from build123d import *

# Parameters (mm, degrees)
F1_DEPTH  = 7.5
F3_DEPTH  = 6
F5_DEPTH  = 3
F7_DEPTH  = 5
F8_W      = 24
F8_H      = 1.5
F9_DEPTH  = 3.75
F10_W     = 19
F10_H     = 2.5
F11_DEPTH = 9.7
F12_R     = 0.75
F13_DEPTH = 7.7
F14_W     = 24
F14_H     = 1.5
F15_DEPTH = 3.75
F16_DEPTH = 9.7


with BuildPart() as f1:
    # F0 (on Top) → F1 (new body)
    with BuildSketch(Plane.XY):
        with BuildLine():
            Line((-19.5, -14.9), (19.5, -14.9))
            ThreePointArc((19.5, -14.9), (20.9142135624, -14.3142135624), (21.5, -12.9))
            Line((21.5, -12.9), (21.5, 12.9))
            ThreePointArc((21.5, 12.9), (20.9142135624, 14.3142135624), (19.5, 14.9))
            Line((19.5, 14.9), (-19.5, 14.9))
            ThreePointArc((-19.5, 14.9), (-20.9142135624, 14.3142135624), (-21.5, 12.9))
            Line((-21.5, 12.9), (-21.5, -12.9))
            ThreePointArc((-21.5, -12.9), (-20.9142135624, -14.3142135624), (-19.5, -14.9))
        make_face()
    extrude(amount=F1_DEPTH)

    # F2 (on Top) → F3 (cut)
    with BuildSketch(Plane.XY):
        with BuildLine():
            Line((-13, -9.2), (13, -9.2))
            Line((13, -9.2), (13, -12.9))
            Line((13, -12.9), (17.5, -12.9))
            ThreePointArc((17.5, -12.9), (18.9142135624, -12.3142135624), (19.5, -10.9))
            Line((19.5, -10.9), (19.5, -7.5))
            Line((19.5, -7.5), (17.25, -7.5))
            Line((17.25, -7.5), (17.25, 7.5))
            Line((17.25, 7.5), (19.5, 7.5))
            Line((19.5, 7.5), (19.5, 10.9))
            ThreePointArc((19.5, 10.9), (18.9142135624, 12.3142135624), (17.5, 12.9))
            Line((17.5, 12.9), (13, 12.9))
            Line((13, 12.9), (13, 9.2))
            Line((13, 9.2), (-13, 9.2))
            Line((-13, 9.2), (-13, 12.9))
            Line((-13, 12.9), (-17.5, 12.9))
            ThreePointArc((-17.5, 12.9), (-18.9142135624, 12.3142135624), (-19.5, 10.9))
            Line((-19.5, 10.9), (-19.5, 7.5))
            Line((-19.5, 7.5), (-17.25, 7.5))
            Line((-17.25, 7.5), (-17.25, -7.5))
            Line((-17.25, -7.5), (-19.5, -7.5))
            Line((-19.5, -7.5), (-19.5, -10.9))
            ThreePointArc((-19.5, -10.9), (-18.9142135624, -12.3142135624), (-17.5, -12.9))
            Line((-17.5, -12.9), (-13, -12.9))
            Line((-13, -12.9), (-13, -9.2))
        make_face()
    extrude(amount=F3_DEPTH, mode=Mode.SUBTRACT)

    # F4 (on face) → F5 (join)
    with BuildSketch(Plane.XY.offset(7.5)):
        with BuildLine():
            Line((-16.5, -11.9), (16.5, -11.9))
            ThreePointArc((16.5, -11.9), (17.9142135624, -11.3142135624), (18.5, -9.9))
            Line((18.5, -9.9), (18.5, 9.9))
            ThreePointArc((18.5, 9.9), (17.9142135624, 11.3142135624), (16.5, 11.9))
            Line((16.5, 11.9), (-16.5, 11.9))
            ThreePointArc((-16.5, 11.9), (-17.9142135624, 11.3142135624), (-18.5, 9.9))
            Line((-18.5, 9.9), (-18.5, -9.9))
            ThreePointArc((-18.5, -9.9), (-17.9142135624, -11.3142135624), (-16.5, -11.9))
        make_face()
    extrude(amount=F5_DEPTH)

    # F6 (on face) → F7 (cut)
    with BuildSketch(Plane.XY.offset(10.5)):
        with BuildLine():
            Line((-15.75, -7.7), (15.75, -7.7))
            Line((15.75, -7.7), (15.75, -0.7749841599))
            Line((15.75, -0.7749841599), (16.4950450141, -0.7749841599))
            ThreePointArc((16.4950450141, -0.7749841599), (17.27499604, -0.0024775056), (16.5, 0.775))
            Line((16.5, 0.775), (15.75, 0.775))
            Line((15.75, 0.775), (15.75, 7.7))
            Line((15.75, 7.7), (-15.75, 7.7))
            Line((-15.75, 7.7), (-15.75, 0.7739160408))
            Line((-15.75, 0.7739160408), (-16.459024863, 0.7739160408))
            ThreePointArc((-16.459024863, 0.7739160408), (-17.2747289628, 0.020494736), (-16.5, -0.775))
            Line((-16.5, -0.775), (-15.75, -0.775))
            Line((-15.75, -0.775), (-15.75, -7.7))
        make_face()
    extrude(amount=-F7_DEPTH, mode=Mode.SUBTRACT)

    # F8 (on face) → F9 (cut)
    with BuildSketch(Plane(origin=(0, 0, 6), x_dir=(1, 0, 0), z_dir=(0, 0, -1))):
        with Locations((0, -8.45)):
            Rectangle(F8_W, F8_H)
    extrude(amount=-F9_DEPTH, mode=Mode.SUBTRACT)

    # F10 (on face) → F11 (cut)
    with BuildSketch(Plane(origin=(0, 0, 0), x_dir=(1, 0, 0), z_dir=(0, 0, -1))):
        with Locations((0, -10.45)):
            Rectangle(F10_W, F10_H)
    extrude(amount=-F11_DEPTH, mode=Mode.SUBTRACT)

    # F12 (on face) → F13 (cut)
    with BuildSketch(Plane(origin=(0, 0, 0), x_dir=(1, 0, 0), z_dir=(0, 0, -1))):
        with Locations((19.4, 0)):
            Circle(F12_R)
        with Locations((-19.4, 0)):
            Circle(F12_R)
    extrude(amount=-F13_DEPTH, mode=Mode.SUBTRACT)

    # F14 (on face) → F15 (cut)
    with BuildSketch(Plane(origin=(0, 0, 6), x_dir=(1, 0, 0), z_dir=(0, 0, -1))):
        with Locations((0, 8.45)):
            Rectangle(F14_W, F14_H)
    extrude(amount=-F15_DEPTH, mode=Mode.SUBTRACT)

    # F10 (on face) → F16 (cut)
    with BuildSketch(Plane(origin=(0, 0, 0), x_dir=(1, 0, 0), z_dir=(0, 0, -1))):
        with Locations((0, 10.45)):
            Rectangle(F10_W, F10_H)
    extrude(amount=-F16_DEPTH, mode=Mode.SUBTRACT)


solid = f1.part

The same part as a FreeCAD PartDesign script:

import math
import FreeCAD as App
import Part
import Sketcher

V = App.Vector


def add_polygon(sketch, points):
    """Adds a closed chain of lines whose ends are joined by coincident constraints."""
    first, n = sketch.GeometryCount, len(points)
    for a, b in zip(points, points[1:] + points[:1]):
        sketch.addGeometry(Part.LineSegment(App.Vector(*a, 0), App.Vector(*b, 0)), False)
    for i in range(n):
        sketch.addConstraint(Sketcher.Constraint("Coincident", first + i, 2, first + (i + 1) % n, 1))

doc = App.newDocument("Part")
body = doc.addObject("PartDesign::Body", "Body")

# Sketch on XY plane
sketch1 = body.newObject("Sketcher::SketchObject", "Sketch")
sketch1.AttachmentSupport = (doc.getObject("XY_Plane"), [""])
sketch1.MapMode = "FlatFace"
sketch1.addGeometry([
    Part.LineSegment(V(-19.5, -14.9, 0), V(19.5, -14.9, 0)),  # 0
    Part.ArcOfCircle(Part.Circle(V(19.5, -12.9, 0), V(0, 0, 1), 2), math.radians(-90), math.radians(0)),  # 1
    Part.LineSegment(V(21.5, -12.9, 0), V(21.5, 12.9, 0)),  # 2
    Part.ArcOfCircle(Part.Circle(V(19.5, 12.9, 0), V(0, 0, 1), 2), math.radians(0), math.radians(90)),  # 3
    Part.LineSegment(V(19.5, 14.9, 0), V(-19.5, 14.9, 0)),  # 4
    Part.ArcOfCircle(Part.Circle(V(-19.5, 12.9, 0), V(0, 0, 1), 2), math.radians(90), math.radians(180)),  # 5
    Part.LineSegment(V(-21.5, 12.9, 0), V(-21.5, -12.9, 0)),  # 6
    Part.ArcOfCircle(Part.Circle(V(-19.5, -12.9, 0), V(0, 0, 1), 2), math.radians(180), math.radians(270)),  # 7
], False)
sketch1.addConstraint([
    Sketcher.Constraint("Tangent", 0, 2, 1, 1),
    Sketcher.Constraint("Tangent", 1, 2, 2, 1),
    Sketcher.Constraint("Tangent", 2, 2, 3, 1),
    Sketcher.Constraint("Tangent", 3, 2, 4, 1),
    Sketcher.Constraint("Tangent", 4, 2, 5, 1),
    Sketcher.Constraint("Tangent", 5, 2, 6, 1),
    Sketcher.Constraint("Tangent", 6, 2, 7, 1),
    Sketcher.Constraint("Tangent", 7, 2, 0, 1),
    Sketcher.Constraint("Horizontal", 0),
    Sketcher.Constraint("Vertical", 2),
    Sketcher.Constraint("Horizontal", 4),
    Sketcher.Constraint("Vertical", 6),
    Sketcher.Constraint("Equal", 1, 3),
    Sketcher.Constraint("Equal", 3, 5),
    Sketcher.Constraint("Equal", 5, 7),
    Sketcher.Constraint("Symmetric", 1, 3, 5, 3, -1, 1),
    Sketcher.Constraint("Radius", 1, 2.0),
    Sketcher.Constraint("DistanceX", 0, 1, 0, 2, 39.0),
    Sketcher.Constraint("DistanceY", 2, 1, 2, 2, 25.8),
])
pad1 = body.newObject("PartDesign::Pad", "Pad")
pad1.Profile = sketch1
pad1.Length = 7.5

# Sketch on XY plane
sketch2 = body.newObject("Sketcher::SketchObject", "Sketch001")
sketch2.AttachmentSupport = (doc.getObject("XY_Plane"), [""])
sketch2.MapMode = "FlatFace"
sketch2.addGeometry([
    Part.LineSegment(V(-13, -9.2, 0), V(13, -9.2, 0)),  # 0
    Part.LineSegment(V(13, -9.2, 0), V(13, -12.9, 0)),  # 1
    Part.LineSegment(V(13, -12.9, 0), V(17.5, -12.9, 0)),  # 2
    Part.ArcOfCircle(Part.Circle(V(17.5, -10.9, 0), V(0, 0, 1), 2), math.radians(-90), math.radians(0)),  # 3
    Part.LineSegment(V(19.5, -10.9, 0), V(19.5, -7.5, 0)),  # 4
    Part.LineSegment(V(19.5, -7.5, 0), V(17.2, -7.5, 0)),  # 5
    Part.LineSegment(V(17.2, -7.5, 0), V(17.2, 7.5, 0)),  # 6
    Part.LineSegment(V(17.2, 7.5, 0), V(19.5, 7.5, 0)),  # 7
    Part.LineSegment(V(19.5, 7.5, 0), V(19.5, 10.9, 0)),  # 8
    Part.ArcOfCircle(Part.Circle(V(17.5, 10.9, 0), V(0, 0, 1), 2), math.radians(0), math.radians(90)),  # 9
    Part.LineSegment(V(17.5, 12.9, 0), V(13, 12.9, 0)),  # 10
    Part.LineSegment(V(13, 12.9, 0), V(13, 9.2, 0)),  # 11
    Part.LineSegment(V(13, 9.2, 0), V(-13, 9.2, 0)),  # 12
    Part.LineSegment(V(-13, 9.2, 0), V(-13, 12.9, 0)),  # 13
    Part.LineSegment(V(-13, 12.9, 0), V(-17.5, 12.9, 0)),  # 14
    Part.ArcOfCircle(Part.Circle(V(-17.5, 10.9, 0), V(0, 0, 1), 2), math.radians(90), math.radians(180)),  # 15
    Part.LineSegment(V(-19.5, 10.9, 0), V(-19.5, 7.5, 0)),  # 16
    Part.LineSegment(V(-19.5, 7.5, 0), V(-17.2, 7.5, 0)),  # 17
    Part.LineSegment(V(-17.2, 7.5, 0), V(-17.2, -7.5, 0)),  # 18
    Part.LineSegment(V(-17.2, -7.5, 0), V(-19.5, -7.5, 0)),  # 19
    Part.LineSegment(V(-19.5, -7.5, 0), V(-19.5, -10.9, 0)),  # 20
    Part.ArcOfCircle(Part.Circle(V(-17.5, -10.9, 0), V(0, 0, 1), 2), math.radians(180), math.radians(270)),  # 21
    Part.LineSegment(V(-17.5, -12.9, 0), V(-13, -12.9, 0)),  # 22
    Part.LineSegment(V(-13, -12.9, 0), V(-13, -9.2, 0)),  # 23
], False)
sketch2.addConstraint([
    Sketcher.Constraint("Coincident", 0, 2, 1, 1),
    Sketcher.Constraint("Coincident", 1, 2, 2, 1),
    Sketcher.Constraint("Tangent", 2, 2, 3, 1),
    Sketcher.Constraint("Tangent", 3, 2, 4, 1),
    Sketcher.Constraint("Coincident", 4, 2, 5, 1),
    Sketcher.Constraint("Coincident", 5, 2, 6, 1),
    Sketcher.Constraint("Coincident", 6, 2, 7, 1),
    Sketcher.Constraint("Coincident", 7, 2, 8, 1),
    Sketcher.Constraint("Tangent", 8, 2, 9, 1),
    Sketcher.Constraint("Tangent", 9, 2, 10, 1),
    Sketcher.Constraint("Coincident", 10, 2, 11, 1),
    Sketcher.Constraint("Coincident", 11, 2, 12, 1),
    Sketcher.Constraint("Coincident", 12, 2, 13, 1),
    Sketcher.Constraint("Coincident", 13, 2, 14, 1),
    Sketcher.Constraint("Tangent", 14, 2, 15, 1),
    Sketcher.Constraint("Tangent", 15, 2, 16, 1),
    Sketcher.Constraint("Coincident", 16, 2, 17, 1),
    Sketcher.Constraint("Coincident", 17, 2, 18, 1),
    Sketcher.Constraint("Coincident", 18, 2, 19, 1),
    Sketcher.Constraint("Coincident", 19, 2, 20, 1),
    Sketcher.Constraint("Tangent", 20, 2, 21, 1),
    Sketcher.Constraint("Tangent", 21, 2, 22, 1),
    Sketcher.Constraint("Coincident", 22, 2, 23, 1),
    Sketcher.Constraint("Coincident", 23, 2, 0, 1),
    Sketcher.Constraint("Horizontal", 0),
    Sketcher.Constraint("Vertical", 1),
    Sketcher.Constraint("Horizontal", 2),
    Sketcher.Constraint("Vertical", 4),
    Sketcher.Constraint("Horizontal", 5),
    Sketcher.Constraint("Vertical", 6),
    Sketcher.Constraint("Horizontal", 7),
    Sketcher.Constraint("Vertical", 8),
    Sketcher.Constraint("Horizontal", 10),
    Sketcher.Constraint("Vertical", 11),
    Sketcher.Constraint("Horizontal", 12),
    Sketcher.Constraint("Vertical", 13),
    Sketcher.Constraint("Horizontal", 14),
    Sketcher.Constraint("Vertical", 16),
    Sketcher.Constraint("Horizontal", 17),
    Sketcher.Constraint("Vertical", 18),
    Sketcher.Constraint("Horizontal", 19),
    Sketcher.Constraint("Vertical", 20),
    Sketcher.Constraint("Horizontal", 22),
    Sketcher.Constraint("Vertical", 23),
    Sketcher.Constraint("Equal", 3, 9),
    Sketcher.Constraint("Equal", 9, 15),
    Sketcher.Constraint("Equal", 15, 21),
    Sketcher.Constraint("Symmetric", 3, 3, 15, 3, -1, 1),
    Sketcher.Constraint("Symmetric", 9, 3, 21, 3, -1, 1),
    Sketcher.Constraint("Symmetric", 0, 2, 12, 2, -1, 1),
    Sketcher.Constraint("Symmetric", 5, 2, 17, 2, -1, 1),
    Sketcher.Constraint("Symmetric", 9, 3, 15, 3, -2),
    Sketcher.Constraint("Horizontal", 7, 2, 16, 2),
    Sketcher.Constraint("Horizontal", 5, 2, 18, 2),
    Sketcher.Constraint("Vertical", 1, 2, 10, 2),
    Sketcher.Constraint("Vertical", 13, 2, 22, 2),
    Sketcher.Constraint("Radius", 3, 2.0),
    Sketcher.Constraint("DistanceX", 0, 1, 0, 2, 26.0),
    Sketcher.Constraint("DistanceY", 6, 1, 6, 2, 15.0),
    Sketcher.Constraint("DistanceX", 2, 1, 2, 2, 4.5),
    Sketcher.Constraint("DistanceY", 1, 2, 1, 1, 3.7),
    Sketcher.Constraint("DistanceY", 4, 1, 4, 2, 3.4),
    Sketcher.Constraint("DistanceX", 5, 2, 5, 1, 2.25),
])
pocket1 = body.newObject("PartDesign::Pocket", "Pocket")
pocket1.Profile = sketch2
pocket1.Length = 6
pocket1.Reversed = True

# Sketch on XY plane
sketch3 = body.newObject("Sketcher::SketchObject", "Sketch002")
sketch3.AttachmentSupport = (doc.getObject("XY_Plane"), [""])
sketch3.MapMode = "FlatFace"
sketch3.AttachmentOffset = App.Placement(V(0, 0, 7.5), App.Rotation())
sketch3.addGeometry([
    Part.LineSegment(V(-16.5, -11.9, 0), V(16.5, -11.9, 0)),  # 0
    Part.ArcOfCircle(Part.Circle(V(16.5, -9.9, 0), V(0, 0, 1), 2), math.radians(-90), math.radians(0)),  # 1
    Part.LineSegment(V(18.5, -9.9, 0), V(18.5, 9.9, 0)),  # 2
    Part.ArcOfCircle(Part.Circle(V(16.5, 9.9, 0), V(0, 0, 1), 2), math.radians(0), math.radians(90)),  # 3
    Part.LineSegment(V(16.5, 11.9, 0), V(-16.5, 11.9, 0)),  # 4
    Part.ArcOfCircle(Part.Circle(V(-16.5, 9.9, 0), V(0, 0, 1), 2), math.radians(90), math.radians(180)),  # 5
    Part.LineSegment(V(-18.5, 9.9, 0), V(-18.5, -9.9, 0)),  # 6
    Part.ArcOfCircle(Part.Circle(V(-16.5, -9.9, 0), V(0, 0, 1), 2), math.radians(180), math.radians(270)),  # 7
], False)
sketch3.addConstraint([
    Sketcher.Constraint("Tangent", 0, 2, 1, 1),
    Sketcher.Constraint("Tangent", 1, 2, 2, 1),
    Sketcher.Constraint("Tangent", 2, 2, 3, 1),
    Sketcher.Constraint("Tangent", 3, 2, 4, 1),
    Sketcher.Constraint("Tangent", 4, 2, 5, 1),
    Sketcher.Constraint("Tangent", 5, 2, 6, 1),
    Sketcher.Constraint("Tangent", 6, 2, 7, 1),
    Sketcher.Constraint("Tangent", 7, 2, 0, 1),
    Sketcher.Constraint("Horizontal", 0),
    Sketcher.Constraint("Vertical", 2),
    Sketcher.Constraint("Horizontal", 4),
    Sketcher.Constraint("Vertical", 6),
    Sketcher.Constraint("Equal", 1, 3),
    Sketcher.Constraint("Equal", 3, 5),
    Sketcher.Constraint("Equal", 5, 7),
    Sketcher.Constraint("Symmetric", 1, 3, 5, 3, -1, 1),
    Sketcher.Constraint("Radius", 1, 2.0),
    Sketcher.Constraint("DistanceX", 0, 1, 0, 2, 33.0),
    Sketcher.Constraint("DistanceY", 2, 1, 2, 2, 19.8),
])
pad2 = body.newObject("PartDesign::Pad", "Pad001")
pad2.Profile = sketch3
pad2.Length = 3

# Sketch on XY plane
sketch4 = body.newObject("Sketcher::SketchObject", "Sketch003")
sketch4.AttachmentSupport = (doc.getObject("XY_Plane"), [""])
sketch4.MapMode = "FlatFace"
sketch4.AttachmentOffset = App.Placement(V(0, 0, 10.5), App.Rotation())
sketch4.addGeometry([
    Part.LineSegment(V(-15.8, -7.7, 0), V(15.8, -7.7, 0)),  # 0
    Part.LineSegment(V(15.8, -7.7, 0), V(15.8, -0.8, 0)),  # 1
    Part.LineSegment(V(15.8, -0.8, 0), V(16.5, -0.8, 0)),  # 2
    Part.ArcOfCircle(Part.Circle(V(16.5, 0, 0), V(0, 0, 1), 0.8), math.radians(-90), math.radians(90)),  # 3
    Part.LineSegment(V(16.5, 0.8, 0), V(15.8, 0.8, 0)),  # 4
    Part.LineSegment(V(15.8, 0.8, 0), V(15.8, 7.7, 0)),  # 5
    Part.LineSegment(V(15.8, 7.7, 0), V(-15.8, 7.7, 0)),  # 6
    Part.LineSegment(V(-15.8, 7.7, 0), V(-15.8, 0.8, 0)),  # 7
    Part.LineSegment(V(-15.8, 0.8, 0), V(-16.5, 0.8, 0)),  # 8
    Part.ArcOfCircle(Part.Circle(V(-16.5, 0, 0), V(0, 0, 1), 0.8), math.radians(87), math.radians(270)),  # 9
    Part.LineSegment(V(-16.5, -0.8, 0), V(-15.8, -0.8, 0)),  # 10
    Part.LineSegment(V(-15.8, -0.8, 0), V(-15.8, -7.7, 0)),  # 11
], False)
sketch4.addConstraint([
    Sketcher.Constraint("Coincident", 0, 2, 1, 1),
    Sketcher.Constraint("Coincident", 1, 2, 2, 1),
    Sketcher.Constraint("Coincident", 2, 2, 3, 1),
    Sketcher.Constraint("Tangent", 3, 2, 4, 1),
    Sketcher.Constraint("Coincident", 4, 2, 5, 1),
    Sketcher.Constraint("Coincident", 5, 2, 6, 1),
    Sketcher.Constraint("Coincident", 6, 2, 7, 1),
    Sketcher.Constraint("Coincident", 7, 2, 8, 1),
    Sketcher.Constraint("Coincident", 8, 2, 9, 1),
    Sketcher.Constraint("Tangent", 9, 2, 10, 1),
    Sketcher.Constraint("Coincident", 10, 2, 11, 1),
    Sketcher.Constraint("Coincident", 11, 2, 0, 1),
    Sketcher.Constraint("Horizontal", 0),
    Sketcher.Constraint("Vertical", 1),
    Sketcher.Constraint("Horizontal", 2),
    Sketcher.Constraint("Horizontal", 4),
    Sketcher.Constraint("Vertical", 5),
    Sketcher.Constraint("Horizontal", 6),
    Sketcher.Constraint("Vertical", 7),
    Sketcher.Constraint("Horizontal", 8),
    Sketcher.Constraint("Horizontal", 10),
    Sketcher.Constraint("Vertical", 11),
    Sketcher.Constraint("Equal", 3, 9),
    Sketcher.Constraint("Symmetric", 3, 3, 9, 3, -1, 1),
    Sketcher.Constraint("Symmetric", 0, 2, 6, 2, -1, 1),
    Sketcher.Constraint("PointOnObject", 3, 3, -1),
    Sketcher.Constraint("Vertical", 1, 2, 4, 2),
    Sketcher.Constraint("Vertical", 7, 2, 10, 2),
    Sketcher.Constraint("DistanceX", 0, 1, 0, 2, 31.5),
    Sketcher.Constraint("Radius", 3, 0.775),
    Sketcher.Constraint("DistanceX", 9, 3, 3, 3, 33.0),
    Sketcher.Constraint("DistanceY", 0, 2, -1, 1, 7.7),
    Sketcher.Constraint("DistanceY", 1, 2, 7, 2, 1.5489),
    Sketcher.Constraint("DistanceX", 2, 1, 2, 2, 0.745045),
])
pocket2 = body.newObject("PartDesign::Pocket", "Pocket001")
pocket2.Profile = sketch4
pocket2.Length = 5

# Sketch on XY plane
sketch5 = body.newObject("Sketcher::SketchObject", "Sketch004")
sketch5.AttachmentSupport = (doc.getObject("XY_Plane"), [""])
sketch5.MapMode = "FlatFace"
sketch5.AttachmentOffset = App.Placement(V(0, 0, 6), App.Rotation())
add_polygon(sketch5, [(-12, 7.7), (-12, 9.2), (12, 9.2), (12, 7.7)])  # lines 0-3
sketch5.addConstraint([
    Sketcher.Constraint("Vertical", 0),
    Sketcher.Constraint("Horizontal", 1),
    Sketcher.Constraint("Vertical", 2),
    Sketcher.Constraint("Horizontal", 3),
    Sketcher.Constraint("DistanceX", 1, 1, 1, 2, 24.0),
    Sketcher.Constraint("DistanceY", 0, 1, 0, 2, 1.5),
    Sketcher.Constraint("DistanceX", 0, 2, -1, 1, 12.0),
    Sketcher.Constraint("DistanceY", -1, 1, 0, 2, 9.2),
])
pocket3 = body.newObject("PartDesign::Pocket", "Pocket002")
pocket3.Profile = sketch5
pocket3.Length = 3.75
pocket3.Reversed = True

# Sketch on XY plane
sketch6 = body.newObject("Sketcher::SketchObject", "Sketch005")
sketch6.AttachmentSupport = (doc.getObject("XY_Plane"), [""])
sketch6.MapMode = "FlatFace"
add_polygon(sketch6, [(-9.5, 9.2), (-9.5, 11.7), (9.5, 11.7), (9.5, 9.2)])  # lines 0-3
sketch6.addConstraint([
    Sketcher.Constraint("Vertical", 0),
    Sketcher.Constraint("Horizontal", 1),
    Sketcher.Constraint("Vertical", 2),
    Sketcher.Constraint("Horizontal", 3),
    Sketcher.Constraint("DistanceX", 1, 1, 1, 2, 19.0),
    Sketcher.Constraint("DistanceY", 0, 1, 0, 2, 2.5),
    Sketcher.Constraint("DistanceX", 0, 2, -1, 1, 9.5),
    Sketcher.Constraint("DistanceY", -1, 1, 0, 2, 11.7),
])
pocket4 = body.newObject("PartDesign::Pocket", "Pocket003")
pocket4.Profile = sketch6
pocket4.Length = 9.7
pocket4.Reversed = True

# Sketch on XY plane
sketch7 = body.newObject("Sketcher::SketchObject", "Sketch006")
sketch7.AttachmentSupport = (doc.getObject("XY_Plane"), [""])
sketch7.MapMode = "FlatFace"
sketch7.addGeometry([
    Part.Circle(V(19.4, 0, 0), V(0, 0, 1), 0.8),
    Part.Circle(V(-19.4, 0, 0), V(0, 0, 1), 0.8),
], False)
sketch7.addConstraint([
    Sketcher.Constraint("Equal", 0, 1),
    Sketcher.Constraint("Symmetric", 0, 3, 1, 3, -1, 1),
    Sketcher.Constraint("PointOnObject", 0, 3, -1),
    Sketcher.Constraint("Diameter", 0, 1.5),
    Sketcher.Constraint("DistanceX", -1, 1, 0, 3, 19.4),
])
pocket5 = body.newObject("PartDesign::Pocket", "Pocket004")
pocket5.Profile = sketch7
pocket5.Length = 7.7
pocket5.Reversed = True

# Sketch on XY plane
sketch8 = body.newObject("Sketcher::SketchObject", "Sketch007")
sketch8.AttachmentSupport = (doc.getObject("XY_Plane"), [""])
sketch8.MapMode = "FlatFace"
sketch8.AttachmentOffset = App.Placement(V(0, 0, 6), App.Rotation())
add_polygon(sketch8, [(-12, -9.2), (-12, -7.7), (12, -7.7), (12, -9.2)])  # lines 0-3
sketch8.addConstraint([
    Sketcher.Constraint("Vertical", 0),
    Sketcher.Constraint("Horizontal", 1),
    Sketcher.Constraint("Vertical", 2),
    Sketcher.Constraint("Horizontal", 3),
    Sketcher.Constraint("DistanceX", 1, 1, 1, 2, 24.0),
    Sketcher.Constraint("DistanceY", 0, 1, 0, 2, 1.5),
    Sketcher.Constraint("DistanceX", 0, 2, -1, 1, 12.0),
    Sketcher.Constraint("DistanceY", 0, 2, -1, 1, 7.7),
])
pocket6 = body.newObject("PartDesign::Pocket", "Pocket005")
pocket6.Profile = sketch8
pocket6.Length = 3.75
pocket6.Reversed = True

# Sketch on XY plane
sketch9 = body.newObject("Sketcher::SketchObject", "Sketch008")
sketch9.AttachmentSupport = (doc.getObject("XY_Plane"), [""])
sketch9.MapMode = "FlatFace"
add_polygon(sketch9, [(-9.5, -11.7), (-9.5, -9.2), (9.5, -9.2), (9.5, -11.7)])  # lines 0-3
sketch9.addConstraint([
    Sketcher.Constraint("Vertical", 0),
    Sketcher.Constraint("Horizontal", 1),
    Sketcher.Constraint("Vertical", 2),
    Sketcher.Constraint("Horizontal", 3),
    Sketcher.Constraint("DistanceX", 1, 1, 1, 2, 19.0),
    Sketcher.Constraint("DistanceY", 0, 1, 0, 2, 2.5),
    Sketcher.Constraint("DistanceX", 0, 2, -1, 1, 9.5),
    Sketcher.Constraint("DistanceY", 0, 2, -1, 1, 9.2),
])
pocket7 = body.newObject("PartDesign::Pocket", "Pocket006")
pocket7.Profile = sketch9
pocket7.Length = 9.7
pocket7.Reversed = True

doc.recompute()
